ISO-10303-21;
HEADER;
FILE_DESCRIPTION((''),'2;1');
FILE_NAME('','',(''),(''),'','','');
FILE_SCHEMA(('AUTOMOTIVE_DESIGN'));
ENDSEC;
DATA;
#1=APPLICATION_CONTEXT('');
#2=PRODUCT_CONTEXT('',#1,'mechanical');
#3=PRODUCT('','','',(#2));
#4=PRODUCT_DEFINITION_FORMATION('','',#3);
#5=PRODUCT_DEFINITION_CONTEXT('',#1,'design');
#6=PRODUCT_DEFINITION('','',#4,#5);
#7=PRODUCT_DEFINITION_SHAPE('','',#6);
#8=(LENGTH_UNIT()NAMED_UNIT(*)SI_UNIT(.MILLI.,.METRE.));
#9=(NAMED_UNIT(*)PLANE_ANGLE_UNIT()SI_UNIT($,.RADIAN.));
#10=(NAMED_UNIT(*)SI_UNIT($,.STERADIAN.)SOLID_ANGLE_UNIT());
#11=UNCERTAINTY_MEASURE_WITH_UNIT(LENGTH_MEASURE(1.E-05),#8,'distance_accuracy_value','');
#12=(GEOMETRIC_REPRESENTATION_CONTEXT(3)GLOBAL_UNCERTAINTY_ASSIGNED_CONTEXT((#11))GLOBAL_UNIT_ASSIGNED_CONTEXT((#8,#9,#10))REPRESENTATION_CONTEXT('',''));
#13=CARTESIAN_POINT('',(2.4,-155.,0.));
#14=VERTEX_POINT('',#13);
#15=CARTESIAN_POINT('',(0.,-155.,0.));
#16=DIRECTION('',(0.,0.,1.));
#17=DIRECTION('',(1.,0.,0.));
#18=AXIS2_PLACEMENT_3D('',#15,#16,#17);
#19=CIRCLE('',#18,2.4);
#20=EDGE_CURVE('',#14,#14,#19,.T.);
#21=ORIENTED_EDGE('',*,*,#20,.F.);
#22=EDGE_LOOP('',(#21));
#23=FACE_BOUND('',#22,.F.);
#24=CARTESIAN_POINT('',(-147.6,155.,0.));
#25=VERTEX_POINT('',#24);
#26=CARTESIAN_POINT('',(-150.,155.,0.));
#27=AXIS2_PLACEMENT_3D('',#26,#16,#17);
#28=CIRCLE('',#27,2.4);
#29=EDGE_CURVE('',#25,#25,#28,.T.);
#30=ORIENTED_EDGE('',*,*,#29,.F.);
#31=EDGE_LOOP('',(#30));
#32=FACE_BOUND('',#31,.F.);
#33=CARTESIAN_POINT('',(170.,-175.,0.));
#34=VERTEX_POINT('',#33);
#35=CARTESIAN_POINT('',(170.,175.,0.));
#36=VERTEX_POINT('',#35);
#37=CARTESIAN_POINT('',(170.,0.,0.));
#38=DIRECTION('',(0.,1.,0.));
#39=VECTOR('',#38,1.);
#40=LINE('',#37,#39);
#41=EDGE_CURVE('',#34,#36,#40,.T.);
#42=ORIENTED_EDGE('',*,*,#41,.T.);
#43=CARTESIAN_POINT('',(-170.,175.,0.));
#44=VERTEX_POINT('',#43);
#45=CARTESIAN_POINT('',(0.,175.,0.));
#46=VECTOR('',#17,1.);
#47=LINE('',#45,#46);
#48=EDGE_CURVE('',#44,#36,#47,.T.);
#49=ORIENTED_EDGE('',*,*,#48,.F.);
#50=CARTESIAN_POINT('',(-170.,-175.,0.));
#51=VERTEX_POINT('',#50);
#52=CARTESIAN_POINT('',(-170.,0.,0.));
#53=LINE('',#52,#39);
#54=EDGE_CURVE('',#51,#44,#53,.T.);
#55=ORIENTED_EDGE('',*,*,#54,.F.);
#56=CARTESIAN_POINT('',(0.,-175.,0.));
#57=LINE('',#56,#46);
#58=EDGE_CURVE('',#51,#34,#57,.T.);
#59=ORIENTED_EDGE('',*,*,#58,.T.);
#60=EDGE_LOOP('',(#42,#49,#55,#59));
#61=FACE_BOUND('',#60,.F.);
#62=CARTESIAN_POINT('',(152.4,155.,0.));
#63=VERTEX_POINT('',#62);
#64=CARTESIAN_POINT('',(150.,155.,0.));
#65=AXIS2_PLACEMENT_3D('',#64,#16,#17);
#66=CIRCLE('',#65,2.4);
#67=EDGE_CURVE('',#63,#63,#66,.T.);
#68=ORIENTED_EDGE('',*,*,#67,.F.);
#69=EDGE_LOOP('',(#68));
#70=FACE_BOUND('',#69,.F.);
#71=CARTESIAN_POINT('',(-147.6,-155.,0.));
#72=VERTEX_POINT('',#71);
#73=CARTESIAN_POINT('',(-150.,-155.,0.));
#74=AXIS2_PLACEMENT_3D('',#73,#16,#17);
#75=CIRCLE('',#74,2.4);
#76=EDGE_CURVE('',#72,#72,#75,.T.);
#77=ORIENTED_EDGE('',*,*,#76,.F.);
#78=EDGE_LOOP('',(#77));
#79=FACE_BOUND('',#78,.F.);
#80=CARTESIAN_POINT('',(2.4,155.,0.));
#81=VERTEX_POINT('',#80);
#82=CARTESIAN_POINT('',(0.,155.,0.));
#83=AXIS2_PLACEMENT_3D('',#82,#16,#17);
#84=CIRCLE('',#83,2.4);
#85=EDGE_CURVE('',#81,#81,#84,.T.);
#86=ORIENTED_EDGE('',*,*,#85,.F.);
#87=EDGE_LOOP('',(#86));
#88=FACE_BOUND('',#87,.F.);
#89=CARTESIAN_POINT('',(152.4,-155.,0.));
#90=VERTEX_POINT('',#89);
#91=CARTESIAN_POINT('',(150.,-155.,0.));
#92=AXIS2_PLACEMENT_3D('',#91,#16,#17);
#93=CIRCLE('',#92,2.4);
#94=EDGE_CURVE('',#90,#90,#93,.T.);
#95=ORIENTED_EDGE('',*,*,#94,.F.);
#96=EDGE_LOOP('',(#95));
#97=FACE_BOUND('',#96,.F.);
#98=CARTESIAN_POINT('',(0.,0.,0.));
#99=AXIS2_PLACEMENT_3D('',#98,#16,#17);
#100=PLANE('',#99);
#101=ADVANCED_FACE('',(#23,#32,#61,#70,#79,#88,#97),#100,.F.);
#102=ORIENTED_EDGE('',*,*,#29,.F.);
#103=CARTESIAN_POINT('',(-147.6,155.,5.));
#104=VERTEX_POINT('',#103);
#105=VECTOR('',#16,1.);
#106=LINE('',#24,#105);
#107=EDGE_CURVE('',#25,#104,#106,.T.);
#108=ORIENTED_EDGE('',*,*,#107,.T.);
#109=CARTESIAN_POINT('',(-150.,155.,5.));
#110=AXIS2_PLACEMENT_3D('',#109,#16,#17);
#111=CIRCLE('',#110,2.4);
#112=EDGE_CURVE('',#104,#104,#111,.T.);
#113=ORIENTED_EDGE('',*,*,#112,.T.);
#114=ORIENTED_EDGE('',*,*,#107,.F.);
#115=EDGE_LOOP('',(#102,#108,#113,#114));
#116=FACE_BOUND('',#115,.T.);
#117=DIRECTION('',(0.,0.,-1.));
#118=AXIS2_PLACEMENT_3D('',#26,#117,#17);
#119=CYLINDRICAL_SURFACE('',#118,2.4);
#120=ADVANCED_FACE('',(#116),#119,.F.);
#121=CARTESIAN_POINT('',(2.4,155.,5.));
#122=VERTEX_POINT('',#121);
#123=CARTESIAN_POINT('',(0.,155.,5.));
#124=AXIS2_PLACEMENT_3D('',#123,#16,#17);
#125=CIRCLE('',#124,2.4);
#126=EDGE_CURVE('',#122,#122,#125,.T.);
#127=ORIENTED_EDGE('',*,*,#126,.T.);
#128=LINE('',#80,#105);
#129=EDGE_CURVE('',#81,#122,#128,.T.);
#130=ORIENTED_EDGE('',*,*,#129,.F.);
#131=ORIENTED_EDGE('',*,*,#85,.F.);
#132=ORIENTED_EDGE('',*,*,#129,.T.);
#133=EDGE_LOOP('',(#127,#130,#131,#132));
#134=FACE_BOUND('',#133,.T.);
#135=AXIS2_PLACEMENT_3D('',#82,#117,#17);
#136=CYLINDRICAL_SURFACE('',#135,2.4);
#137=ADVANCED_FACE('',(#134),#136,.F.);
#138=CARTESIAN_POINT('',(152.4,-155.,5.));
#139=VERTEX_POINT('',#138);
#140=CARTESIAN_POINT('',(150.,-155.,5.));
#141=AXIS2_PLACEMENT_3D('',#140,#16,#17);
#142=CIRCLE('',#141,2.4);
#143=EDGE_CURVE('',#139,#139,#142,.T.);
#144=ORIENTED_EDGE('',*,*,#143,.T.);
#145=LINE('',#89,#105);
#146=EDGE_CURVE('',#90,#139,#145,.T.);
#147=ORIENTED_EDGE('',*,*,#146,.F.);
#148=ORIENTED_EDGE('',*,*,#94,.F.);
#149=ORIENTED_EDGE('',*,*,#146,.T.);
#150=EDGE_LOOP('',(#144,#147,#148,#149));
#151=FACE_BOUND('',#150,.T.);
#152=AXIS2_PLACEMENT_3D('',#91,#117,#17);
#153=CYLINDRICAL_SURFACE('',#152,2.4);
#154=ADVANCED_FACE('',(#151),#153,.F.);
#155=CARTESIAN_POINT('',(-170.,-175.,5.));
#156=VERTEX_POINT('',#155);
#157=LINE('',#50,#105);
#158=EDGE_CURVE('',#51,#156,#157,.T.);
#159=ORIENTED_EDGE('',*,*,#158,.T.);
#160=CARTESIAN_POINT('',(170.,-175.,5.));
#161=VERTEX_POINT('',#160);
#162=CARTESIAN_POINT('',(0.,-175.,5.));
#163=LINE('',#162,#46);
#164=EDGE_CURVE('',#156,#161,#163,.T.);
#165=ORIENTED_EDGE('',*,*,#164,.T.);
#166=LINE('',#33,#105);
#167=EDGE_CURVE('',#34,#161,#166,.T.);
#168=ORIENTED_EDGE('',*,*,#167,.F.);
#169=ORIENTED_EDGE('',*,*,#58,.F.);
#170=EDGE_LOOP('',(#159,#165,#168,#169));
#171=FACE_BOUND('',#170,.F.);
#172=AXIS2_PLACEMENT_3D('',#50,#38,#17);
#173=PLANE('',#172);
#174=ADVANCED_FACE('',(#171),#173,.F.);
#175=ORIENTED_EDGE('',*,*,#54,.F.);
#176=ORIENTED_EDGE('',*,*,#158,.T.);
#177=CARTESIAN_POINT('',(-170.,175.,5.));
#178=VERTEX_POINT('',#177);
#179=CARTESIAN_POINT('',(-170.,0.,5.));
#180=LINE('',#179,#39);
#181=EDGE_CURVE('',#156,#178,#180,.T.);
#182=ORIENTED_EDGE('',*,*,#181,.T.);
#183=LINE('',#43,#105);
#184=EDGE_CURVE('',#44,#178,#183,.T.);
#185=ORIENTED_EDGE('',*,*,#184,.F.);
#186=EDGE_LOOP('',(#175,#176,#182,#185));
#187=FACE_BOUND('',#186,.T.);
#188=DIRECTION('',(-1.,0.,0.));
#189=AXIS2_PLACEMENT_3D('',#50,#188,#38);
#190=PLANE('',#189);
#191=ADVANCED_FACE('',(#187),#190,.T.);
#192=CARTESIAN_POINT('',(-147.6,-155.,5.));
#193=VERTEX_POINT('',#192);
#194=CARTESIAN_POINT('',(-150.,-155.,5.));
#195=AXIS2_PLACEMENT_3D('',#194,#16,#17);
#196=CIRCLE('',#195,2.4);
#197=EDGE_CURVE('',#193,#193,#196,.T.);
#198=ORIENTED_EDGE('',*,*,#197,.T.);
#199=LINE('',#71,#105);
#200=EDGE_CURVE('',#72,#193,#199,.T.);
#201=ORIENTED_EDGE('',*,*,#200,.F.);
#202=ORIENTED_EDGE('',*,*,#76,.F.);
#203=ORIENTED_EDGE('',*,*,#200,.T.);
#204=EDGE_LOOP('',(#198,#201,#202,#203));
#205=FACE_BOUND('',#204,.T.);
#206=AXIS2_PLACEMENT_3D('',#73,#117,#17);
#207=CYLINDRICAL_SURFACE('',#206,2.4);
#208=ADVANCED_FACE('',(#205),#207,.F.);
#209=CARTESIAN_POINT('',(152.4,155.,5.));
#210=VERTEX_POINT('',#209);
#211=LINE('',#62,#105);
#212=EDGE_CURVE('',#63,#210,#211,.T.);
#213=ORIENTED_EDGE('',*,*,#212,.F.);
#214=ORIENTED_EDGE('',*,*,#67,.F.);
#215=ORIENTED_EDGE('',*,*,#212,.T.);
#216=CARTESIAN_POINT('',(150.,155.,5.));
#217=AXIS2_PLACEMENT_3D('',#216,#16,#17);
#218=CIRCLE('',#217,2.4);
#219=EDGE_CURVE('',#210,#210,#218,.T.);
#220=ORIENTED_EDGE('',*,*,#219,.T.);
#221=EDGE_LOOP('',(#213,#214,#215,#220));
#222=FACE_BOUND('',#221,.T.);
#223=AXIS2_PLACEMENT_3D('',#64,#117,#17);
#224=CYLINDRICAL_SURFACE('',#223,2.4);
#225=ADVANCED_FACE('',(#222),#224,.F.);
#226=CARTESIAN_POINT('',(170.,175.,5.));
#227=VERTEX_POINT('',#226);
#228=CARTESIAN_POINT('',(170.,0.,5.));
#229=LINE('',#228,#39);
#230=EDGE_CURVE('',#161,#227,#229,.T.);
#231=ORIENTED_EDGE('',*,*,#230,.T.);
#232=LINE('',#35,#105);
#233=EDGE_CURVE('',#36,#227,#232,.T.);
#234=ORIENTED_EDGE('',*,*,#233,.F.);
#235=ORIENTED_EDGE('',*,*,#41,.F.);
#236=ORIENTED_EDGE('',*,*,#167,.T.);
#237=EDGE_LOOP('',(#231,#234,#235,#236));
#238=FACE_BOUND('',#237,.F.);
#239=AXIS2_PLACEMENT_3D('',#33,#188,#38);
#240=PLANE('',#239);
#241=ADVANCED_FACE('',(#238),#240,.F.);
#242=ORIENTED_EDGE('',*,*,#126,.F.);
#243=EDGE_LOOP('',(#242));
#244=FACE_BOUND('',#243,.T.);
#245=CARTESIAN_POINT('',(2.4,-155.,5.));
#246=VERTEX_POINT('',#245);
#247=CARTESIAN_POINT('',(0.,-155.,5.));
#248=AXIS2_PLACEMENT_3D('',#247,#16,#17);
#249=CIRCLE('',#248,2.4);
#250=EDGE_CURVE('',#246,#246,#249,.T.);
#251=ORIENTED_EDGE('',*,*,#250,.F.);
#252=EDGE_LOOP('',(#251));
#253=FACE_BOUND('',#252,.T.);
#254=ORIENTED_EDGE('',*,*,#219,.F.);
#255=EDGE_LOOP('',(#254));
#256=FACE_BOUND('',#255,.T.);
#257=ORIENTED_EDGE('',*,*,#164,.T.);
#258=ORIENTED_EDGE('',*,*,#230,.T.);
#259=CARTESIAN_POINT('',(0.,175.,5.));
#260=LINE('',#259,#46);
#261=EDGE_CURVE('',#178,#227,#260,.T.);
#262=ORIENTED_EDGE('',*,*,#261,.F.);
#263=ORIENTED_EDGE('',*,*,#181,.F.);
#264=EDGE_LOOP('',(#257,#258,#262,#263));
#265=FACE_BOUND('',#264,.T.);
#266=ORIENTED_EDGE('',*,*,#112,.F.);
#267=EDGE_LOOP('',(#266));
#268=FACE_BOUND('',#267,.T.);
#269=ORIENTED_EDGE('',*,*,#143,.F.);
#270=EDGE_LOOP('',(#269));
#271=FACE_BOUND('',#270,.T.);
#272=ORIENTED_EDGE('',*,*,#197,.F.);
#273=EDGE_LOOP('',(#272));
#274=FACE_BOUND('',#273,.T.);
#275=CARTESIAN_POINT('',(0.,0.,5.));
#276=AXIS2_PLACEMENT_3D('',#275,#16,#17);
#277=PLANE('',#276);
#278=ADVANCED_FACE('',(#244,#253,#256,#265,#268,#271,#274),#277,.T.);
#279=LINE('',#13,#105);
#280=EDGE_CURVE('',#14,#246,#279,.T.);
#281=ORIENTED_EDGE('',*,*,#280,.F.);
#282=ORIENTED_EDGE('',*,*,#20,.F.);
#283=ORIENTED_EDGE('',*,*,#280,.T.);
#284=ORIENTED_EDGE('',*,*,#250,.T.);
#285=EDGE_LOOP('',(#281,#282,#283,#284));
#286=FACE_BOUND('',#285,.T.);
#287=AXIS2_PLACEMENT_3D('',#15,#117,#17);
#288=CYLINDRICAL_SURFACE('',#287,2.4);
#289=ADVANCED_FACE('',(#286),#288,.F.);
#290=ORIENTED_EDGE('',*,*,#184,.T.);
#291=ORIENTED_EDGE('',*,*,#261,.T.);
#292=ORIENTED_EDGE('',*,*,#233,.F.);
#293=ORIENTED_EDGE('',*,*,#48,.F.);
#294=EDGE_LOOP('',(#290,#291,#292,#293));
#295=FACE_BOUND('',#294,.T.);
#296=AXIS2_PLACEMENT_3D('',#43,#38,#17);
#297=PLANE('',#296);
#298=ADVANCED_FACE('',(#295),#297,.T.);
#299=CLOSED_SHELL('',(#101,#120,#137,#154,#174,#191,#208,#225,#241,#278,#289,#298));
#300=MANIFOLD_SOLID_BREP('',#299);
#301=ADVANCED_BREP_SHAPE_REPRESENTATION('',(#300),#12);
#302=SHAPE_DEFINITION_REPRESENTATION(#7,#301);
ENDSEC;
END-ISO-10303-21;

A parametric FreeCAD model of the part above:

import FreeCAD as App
import Part
import Sketcher

V = App.Vector


def add_polygon(sketch, points):
    """Adds a closed chain of lines whose ends are joined by coincident constraints."""
    first, n = sketch.GeometryCount, len(points)
    for a, b in zip(points, points[1:] + points[:1]):
        sketch.addGeometry(Part.LineSegment(App.Vector(*a, 0), App.Vector(*b, 0)), False)
    for i in range(n):
        sketch.addConstraint(Sketcher.Constraint("Coincident", first + i, 2, first + (i + 1) % n, 1))

doc = App.newDocument("Part")
body = doc.addObject("PartDesign::Body", "Body")

# Sketch on XY plane
sketch1 = doc.addObject("Sketcher::SketchObject", "Sketch")
body.addObject(sketch1)
sketch1.AttachmentSupport = (doc.XY_Plane, [""])
sketch1.MapMode = "FlatFace"
add_polygon(sketch1, [(-170, 175), (-170, -175), (170, -175), (170, 175)])  # lines 0-3
sketch1.addGeometry(Part.Circle(V(-150, -155, 0), V(0, 0, 1), 2.4), False)  # 4
sketch1.addGeometry(Part.Circle(V(0, -155, 0), V(0, 0, 1), 2.4), False)  # 5
sketch1.addGeometry(Part.Circle(V(150, -155, 0), V(0, 0, 1), 2.4), False)  # 6
sketch1.addGeometry(Part.Circle(V(-150, 155, 0), V(0, 0, 1), 2.4), False)  # 7
sketch1.addGeometry(Part.Circle(V(0, 155, 0), V(0, 0, 1), 2.4), False)  # 8
sketch1.addGeometry(Part.Circle(V(150, 155, 0), V(0, 0, 1), 2.4), False)  # 9
sketch1.addConstraint([
    Sketcher.Constraint("Vertical", 0),
    Sketcher.Constraint("Horizontal", 1),
    Sketcher.Constraint("Vertical", 2),
    Sketcher.Constraint("Horizontal", 3),
    Sketcher.Constraint("Equal", 4, 5),
    Sketcher.Constraint("Equal", 5, 6),
    Sketcher.Constraint("Equal", 6, 7),
    Sketcher.Constraint("Equal", 7, 8),
    Sketcher.Constraint("Equal", 8, 9),
    Sketcher.Constraint("Symmetric", 6, 3, 7, 3, -1, 1),
    Sketcher.Constraint("Symmetric", 5, 3, 8, 3, -1, 1),
    Sketcher.Constraint("Symmetric", 4, 3, 9, 3, -1, 1),
    Sketcher.Constraint("Symmetric", 0, 2, 2, 2, -1, 1),
    Sketcher.Constraint("Symmetric", 4, 3, 6, 3, -2),
    Sketcher.Constraint("PointOnObject", 5, 3, -2),
    Sketcher.Constraint("Horizontal", 4, 3, 5, 3),
    Sketcher.Constraint("Diameter", 4, 4.8),
    Sketcher.Constraint("DistanceX", 1, 1, 1, 2, 340.0),
    Sketcher.Constraint("DistanceY", 0, 2, 0, 1, 350.0),
    Sketcher.Constraint("DistanceX", 4, 3, -1, 1, 150.0),
    Sketcher.Constraint("DistanceY", 4, 3, -1, 1, 155.0),
])
pad1 = doc.addObject("PartDesign::Pad", "Pad")
body.addObject(pad1)
pad1.Profile = sketch1
pad1.Length = 5

doc.recompute()
